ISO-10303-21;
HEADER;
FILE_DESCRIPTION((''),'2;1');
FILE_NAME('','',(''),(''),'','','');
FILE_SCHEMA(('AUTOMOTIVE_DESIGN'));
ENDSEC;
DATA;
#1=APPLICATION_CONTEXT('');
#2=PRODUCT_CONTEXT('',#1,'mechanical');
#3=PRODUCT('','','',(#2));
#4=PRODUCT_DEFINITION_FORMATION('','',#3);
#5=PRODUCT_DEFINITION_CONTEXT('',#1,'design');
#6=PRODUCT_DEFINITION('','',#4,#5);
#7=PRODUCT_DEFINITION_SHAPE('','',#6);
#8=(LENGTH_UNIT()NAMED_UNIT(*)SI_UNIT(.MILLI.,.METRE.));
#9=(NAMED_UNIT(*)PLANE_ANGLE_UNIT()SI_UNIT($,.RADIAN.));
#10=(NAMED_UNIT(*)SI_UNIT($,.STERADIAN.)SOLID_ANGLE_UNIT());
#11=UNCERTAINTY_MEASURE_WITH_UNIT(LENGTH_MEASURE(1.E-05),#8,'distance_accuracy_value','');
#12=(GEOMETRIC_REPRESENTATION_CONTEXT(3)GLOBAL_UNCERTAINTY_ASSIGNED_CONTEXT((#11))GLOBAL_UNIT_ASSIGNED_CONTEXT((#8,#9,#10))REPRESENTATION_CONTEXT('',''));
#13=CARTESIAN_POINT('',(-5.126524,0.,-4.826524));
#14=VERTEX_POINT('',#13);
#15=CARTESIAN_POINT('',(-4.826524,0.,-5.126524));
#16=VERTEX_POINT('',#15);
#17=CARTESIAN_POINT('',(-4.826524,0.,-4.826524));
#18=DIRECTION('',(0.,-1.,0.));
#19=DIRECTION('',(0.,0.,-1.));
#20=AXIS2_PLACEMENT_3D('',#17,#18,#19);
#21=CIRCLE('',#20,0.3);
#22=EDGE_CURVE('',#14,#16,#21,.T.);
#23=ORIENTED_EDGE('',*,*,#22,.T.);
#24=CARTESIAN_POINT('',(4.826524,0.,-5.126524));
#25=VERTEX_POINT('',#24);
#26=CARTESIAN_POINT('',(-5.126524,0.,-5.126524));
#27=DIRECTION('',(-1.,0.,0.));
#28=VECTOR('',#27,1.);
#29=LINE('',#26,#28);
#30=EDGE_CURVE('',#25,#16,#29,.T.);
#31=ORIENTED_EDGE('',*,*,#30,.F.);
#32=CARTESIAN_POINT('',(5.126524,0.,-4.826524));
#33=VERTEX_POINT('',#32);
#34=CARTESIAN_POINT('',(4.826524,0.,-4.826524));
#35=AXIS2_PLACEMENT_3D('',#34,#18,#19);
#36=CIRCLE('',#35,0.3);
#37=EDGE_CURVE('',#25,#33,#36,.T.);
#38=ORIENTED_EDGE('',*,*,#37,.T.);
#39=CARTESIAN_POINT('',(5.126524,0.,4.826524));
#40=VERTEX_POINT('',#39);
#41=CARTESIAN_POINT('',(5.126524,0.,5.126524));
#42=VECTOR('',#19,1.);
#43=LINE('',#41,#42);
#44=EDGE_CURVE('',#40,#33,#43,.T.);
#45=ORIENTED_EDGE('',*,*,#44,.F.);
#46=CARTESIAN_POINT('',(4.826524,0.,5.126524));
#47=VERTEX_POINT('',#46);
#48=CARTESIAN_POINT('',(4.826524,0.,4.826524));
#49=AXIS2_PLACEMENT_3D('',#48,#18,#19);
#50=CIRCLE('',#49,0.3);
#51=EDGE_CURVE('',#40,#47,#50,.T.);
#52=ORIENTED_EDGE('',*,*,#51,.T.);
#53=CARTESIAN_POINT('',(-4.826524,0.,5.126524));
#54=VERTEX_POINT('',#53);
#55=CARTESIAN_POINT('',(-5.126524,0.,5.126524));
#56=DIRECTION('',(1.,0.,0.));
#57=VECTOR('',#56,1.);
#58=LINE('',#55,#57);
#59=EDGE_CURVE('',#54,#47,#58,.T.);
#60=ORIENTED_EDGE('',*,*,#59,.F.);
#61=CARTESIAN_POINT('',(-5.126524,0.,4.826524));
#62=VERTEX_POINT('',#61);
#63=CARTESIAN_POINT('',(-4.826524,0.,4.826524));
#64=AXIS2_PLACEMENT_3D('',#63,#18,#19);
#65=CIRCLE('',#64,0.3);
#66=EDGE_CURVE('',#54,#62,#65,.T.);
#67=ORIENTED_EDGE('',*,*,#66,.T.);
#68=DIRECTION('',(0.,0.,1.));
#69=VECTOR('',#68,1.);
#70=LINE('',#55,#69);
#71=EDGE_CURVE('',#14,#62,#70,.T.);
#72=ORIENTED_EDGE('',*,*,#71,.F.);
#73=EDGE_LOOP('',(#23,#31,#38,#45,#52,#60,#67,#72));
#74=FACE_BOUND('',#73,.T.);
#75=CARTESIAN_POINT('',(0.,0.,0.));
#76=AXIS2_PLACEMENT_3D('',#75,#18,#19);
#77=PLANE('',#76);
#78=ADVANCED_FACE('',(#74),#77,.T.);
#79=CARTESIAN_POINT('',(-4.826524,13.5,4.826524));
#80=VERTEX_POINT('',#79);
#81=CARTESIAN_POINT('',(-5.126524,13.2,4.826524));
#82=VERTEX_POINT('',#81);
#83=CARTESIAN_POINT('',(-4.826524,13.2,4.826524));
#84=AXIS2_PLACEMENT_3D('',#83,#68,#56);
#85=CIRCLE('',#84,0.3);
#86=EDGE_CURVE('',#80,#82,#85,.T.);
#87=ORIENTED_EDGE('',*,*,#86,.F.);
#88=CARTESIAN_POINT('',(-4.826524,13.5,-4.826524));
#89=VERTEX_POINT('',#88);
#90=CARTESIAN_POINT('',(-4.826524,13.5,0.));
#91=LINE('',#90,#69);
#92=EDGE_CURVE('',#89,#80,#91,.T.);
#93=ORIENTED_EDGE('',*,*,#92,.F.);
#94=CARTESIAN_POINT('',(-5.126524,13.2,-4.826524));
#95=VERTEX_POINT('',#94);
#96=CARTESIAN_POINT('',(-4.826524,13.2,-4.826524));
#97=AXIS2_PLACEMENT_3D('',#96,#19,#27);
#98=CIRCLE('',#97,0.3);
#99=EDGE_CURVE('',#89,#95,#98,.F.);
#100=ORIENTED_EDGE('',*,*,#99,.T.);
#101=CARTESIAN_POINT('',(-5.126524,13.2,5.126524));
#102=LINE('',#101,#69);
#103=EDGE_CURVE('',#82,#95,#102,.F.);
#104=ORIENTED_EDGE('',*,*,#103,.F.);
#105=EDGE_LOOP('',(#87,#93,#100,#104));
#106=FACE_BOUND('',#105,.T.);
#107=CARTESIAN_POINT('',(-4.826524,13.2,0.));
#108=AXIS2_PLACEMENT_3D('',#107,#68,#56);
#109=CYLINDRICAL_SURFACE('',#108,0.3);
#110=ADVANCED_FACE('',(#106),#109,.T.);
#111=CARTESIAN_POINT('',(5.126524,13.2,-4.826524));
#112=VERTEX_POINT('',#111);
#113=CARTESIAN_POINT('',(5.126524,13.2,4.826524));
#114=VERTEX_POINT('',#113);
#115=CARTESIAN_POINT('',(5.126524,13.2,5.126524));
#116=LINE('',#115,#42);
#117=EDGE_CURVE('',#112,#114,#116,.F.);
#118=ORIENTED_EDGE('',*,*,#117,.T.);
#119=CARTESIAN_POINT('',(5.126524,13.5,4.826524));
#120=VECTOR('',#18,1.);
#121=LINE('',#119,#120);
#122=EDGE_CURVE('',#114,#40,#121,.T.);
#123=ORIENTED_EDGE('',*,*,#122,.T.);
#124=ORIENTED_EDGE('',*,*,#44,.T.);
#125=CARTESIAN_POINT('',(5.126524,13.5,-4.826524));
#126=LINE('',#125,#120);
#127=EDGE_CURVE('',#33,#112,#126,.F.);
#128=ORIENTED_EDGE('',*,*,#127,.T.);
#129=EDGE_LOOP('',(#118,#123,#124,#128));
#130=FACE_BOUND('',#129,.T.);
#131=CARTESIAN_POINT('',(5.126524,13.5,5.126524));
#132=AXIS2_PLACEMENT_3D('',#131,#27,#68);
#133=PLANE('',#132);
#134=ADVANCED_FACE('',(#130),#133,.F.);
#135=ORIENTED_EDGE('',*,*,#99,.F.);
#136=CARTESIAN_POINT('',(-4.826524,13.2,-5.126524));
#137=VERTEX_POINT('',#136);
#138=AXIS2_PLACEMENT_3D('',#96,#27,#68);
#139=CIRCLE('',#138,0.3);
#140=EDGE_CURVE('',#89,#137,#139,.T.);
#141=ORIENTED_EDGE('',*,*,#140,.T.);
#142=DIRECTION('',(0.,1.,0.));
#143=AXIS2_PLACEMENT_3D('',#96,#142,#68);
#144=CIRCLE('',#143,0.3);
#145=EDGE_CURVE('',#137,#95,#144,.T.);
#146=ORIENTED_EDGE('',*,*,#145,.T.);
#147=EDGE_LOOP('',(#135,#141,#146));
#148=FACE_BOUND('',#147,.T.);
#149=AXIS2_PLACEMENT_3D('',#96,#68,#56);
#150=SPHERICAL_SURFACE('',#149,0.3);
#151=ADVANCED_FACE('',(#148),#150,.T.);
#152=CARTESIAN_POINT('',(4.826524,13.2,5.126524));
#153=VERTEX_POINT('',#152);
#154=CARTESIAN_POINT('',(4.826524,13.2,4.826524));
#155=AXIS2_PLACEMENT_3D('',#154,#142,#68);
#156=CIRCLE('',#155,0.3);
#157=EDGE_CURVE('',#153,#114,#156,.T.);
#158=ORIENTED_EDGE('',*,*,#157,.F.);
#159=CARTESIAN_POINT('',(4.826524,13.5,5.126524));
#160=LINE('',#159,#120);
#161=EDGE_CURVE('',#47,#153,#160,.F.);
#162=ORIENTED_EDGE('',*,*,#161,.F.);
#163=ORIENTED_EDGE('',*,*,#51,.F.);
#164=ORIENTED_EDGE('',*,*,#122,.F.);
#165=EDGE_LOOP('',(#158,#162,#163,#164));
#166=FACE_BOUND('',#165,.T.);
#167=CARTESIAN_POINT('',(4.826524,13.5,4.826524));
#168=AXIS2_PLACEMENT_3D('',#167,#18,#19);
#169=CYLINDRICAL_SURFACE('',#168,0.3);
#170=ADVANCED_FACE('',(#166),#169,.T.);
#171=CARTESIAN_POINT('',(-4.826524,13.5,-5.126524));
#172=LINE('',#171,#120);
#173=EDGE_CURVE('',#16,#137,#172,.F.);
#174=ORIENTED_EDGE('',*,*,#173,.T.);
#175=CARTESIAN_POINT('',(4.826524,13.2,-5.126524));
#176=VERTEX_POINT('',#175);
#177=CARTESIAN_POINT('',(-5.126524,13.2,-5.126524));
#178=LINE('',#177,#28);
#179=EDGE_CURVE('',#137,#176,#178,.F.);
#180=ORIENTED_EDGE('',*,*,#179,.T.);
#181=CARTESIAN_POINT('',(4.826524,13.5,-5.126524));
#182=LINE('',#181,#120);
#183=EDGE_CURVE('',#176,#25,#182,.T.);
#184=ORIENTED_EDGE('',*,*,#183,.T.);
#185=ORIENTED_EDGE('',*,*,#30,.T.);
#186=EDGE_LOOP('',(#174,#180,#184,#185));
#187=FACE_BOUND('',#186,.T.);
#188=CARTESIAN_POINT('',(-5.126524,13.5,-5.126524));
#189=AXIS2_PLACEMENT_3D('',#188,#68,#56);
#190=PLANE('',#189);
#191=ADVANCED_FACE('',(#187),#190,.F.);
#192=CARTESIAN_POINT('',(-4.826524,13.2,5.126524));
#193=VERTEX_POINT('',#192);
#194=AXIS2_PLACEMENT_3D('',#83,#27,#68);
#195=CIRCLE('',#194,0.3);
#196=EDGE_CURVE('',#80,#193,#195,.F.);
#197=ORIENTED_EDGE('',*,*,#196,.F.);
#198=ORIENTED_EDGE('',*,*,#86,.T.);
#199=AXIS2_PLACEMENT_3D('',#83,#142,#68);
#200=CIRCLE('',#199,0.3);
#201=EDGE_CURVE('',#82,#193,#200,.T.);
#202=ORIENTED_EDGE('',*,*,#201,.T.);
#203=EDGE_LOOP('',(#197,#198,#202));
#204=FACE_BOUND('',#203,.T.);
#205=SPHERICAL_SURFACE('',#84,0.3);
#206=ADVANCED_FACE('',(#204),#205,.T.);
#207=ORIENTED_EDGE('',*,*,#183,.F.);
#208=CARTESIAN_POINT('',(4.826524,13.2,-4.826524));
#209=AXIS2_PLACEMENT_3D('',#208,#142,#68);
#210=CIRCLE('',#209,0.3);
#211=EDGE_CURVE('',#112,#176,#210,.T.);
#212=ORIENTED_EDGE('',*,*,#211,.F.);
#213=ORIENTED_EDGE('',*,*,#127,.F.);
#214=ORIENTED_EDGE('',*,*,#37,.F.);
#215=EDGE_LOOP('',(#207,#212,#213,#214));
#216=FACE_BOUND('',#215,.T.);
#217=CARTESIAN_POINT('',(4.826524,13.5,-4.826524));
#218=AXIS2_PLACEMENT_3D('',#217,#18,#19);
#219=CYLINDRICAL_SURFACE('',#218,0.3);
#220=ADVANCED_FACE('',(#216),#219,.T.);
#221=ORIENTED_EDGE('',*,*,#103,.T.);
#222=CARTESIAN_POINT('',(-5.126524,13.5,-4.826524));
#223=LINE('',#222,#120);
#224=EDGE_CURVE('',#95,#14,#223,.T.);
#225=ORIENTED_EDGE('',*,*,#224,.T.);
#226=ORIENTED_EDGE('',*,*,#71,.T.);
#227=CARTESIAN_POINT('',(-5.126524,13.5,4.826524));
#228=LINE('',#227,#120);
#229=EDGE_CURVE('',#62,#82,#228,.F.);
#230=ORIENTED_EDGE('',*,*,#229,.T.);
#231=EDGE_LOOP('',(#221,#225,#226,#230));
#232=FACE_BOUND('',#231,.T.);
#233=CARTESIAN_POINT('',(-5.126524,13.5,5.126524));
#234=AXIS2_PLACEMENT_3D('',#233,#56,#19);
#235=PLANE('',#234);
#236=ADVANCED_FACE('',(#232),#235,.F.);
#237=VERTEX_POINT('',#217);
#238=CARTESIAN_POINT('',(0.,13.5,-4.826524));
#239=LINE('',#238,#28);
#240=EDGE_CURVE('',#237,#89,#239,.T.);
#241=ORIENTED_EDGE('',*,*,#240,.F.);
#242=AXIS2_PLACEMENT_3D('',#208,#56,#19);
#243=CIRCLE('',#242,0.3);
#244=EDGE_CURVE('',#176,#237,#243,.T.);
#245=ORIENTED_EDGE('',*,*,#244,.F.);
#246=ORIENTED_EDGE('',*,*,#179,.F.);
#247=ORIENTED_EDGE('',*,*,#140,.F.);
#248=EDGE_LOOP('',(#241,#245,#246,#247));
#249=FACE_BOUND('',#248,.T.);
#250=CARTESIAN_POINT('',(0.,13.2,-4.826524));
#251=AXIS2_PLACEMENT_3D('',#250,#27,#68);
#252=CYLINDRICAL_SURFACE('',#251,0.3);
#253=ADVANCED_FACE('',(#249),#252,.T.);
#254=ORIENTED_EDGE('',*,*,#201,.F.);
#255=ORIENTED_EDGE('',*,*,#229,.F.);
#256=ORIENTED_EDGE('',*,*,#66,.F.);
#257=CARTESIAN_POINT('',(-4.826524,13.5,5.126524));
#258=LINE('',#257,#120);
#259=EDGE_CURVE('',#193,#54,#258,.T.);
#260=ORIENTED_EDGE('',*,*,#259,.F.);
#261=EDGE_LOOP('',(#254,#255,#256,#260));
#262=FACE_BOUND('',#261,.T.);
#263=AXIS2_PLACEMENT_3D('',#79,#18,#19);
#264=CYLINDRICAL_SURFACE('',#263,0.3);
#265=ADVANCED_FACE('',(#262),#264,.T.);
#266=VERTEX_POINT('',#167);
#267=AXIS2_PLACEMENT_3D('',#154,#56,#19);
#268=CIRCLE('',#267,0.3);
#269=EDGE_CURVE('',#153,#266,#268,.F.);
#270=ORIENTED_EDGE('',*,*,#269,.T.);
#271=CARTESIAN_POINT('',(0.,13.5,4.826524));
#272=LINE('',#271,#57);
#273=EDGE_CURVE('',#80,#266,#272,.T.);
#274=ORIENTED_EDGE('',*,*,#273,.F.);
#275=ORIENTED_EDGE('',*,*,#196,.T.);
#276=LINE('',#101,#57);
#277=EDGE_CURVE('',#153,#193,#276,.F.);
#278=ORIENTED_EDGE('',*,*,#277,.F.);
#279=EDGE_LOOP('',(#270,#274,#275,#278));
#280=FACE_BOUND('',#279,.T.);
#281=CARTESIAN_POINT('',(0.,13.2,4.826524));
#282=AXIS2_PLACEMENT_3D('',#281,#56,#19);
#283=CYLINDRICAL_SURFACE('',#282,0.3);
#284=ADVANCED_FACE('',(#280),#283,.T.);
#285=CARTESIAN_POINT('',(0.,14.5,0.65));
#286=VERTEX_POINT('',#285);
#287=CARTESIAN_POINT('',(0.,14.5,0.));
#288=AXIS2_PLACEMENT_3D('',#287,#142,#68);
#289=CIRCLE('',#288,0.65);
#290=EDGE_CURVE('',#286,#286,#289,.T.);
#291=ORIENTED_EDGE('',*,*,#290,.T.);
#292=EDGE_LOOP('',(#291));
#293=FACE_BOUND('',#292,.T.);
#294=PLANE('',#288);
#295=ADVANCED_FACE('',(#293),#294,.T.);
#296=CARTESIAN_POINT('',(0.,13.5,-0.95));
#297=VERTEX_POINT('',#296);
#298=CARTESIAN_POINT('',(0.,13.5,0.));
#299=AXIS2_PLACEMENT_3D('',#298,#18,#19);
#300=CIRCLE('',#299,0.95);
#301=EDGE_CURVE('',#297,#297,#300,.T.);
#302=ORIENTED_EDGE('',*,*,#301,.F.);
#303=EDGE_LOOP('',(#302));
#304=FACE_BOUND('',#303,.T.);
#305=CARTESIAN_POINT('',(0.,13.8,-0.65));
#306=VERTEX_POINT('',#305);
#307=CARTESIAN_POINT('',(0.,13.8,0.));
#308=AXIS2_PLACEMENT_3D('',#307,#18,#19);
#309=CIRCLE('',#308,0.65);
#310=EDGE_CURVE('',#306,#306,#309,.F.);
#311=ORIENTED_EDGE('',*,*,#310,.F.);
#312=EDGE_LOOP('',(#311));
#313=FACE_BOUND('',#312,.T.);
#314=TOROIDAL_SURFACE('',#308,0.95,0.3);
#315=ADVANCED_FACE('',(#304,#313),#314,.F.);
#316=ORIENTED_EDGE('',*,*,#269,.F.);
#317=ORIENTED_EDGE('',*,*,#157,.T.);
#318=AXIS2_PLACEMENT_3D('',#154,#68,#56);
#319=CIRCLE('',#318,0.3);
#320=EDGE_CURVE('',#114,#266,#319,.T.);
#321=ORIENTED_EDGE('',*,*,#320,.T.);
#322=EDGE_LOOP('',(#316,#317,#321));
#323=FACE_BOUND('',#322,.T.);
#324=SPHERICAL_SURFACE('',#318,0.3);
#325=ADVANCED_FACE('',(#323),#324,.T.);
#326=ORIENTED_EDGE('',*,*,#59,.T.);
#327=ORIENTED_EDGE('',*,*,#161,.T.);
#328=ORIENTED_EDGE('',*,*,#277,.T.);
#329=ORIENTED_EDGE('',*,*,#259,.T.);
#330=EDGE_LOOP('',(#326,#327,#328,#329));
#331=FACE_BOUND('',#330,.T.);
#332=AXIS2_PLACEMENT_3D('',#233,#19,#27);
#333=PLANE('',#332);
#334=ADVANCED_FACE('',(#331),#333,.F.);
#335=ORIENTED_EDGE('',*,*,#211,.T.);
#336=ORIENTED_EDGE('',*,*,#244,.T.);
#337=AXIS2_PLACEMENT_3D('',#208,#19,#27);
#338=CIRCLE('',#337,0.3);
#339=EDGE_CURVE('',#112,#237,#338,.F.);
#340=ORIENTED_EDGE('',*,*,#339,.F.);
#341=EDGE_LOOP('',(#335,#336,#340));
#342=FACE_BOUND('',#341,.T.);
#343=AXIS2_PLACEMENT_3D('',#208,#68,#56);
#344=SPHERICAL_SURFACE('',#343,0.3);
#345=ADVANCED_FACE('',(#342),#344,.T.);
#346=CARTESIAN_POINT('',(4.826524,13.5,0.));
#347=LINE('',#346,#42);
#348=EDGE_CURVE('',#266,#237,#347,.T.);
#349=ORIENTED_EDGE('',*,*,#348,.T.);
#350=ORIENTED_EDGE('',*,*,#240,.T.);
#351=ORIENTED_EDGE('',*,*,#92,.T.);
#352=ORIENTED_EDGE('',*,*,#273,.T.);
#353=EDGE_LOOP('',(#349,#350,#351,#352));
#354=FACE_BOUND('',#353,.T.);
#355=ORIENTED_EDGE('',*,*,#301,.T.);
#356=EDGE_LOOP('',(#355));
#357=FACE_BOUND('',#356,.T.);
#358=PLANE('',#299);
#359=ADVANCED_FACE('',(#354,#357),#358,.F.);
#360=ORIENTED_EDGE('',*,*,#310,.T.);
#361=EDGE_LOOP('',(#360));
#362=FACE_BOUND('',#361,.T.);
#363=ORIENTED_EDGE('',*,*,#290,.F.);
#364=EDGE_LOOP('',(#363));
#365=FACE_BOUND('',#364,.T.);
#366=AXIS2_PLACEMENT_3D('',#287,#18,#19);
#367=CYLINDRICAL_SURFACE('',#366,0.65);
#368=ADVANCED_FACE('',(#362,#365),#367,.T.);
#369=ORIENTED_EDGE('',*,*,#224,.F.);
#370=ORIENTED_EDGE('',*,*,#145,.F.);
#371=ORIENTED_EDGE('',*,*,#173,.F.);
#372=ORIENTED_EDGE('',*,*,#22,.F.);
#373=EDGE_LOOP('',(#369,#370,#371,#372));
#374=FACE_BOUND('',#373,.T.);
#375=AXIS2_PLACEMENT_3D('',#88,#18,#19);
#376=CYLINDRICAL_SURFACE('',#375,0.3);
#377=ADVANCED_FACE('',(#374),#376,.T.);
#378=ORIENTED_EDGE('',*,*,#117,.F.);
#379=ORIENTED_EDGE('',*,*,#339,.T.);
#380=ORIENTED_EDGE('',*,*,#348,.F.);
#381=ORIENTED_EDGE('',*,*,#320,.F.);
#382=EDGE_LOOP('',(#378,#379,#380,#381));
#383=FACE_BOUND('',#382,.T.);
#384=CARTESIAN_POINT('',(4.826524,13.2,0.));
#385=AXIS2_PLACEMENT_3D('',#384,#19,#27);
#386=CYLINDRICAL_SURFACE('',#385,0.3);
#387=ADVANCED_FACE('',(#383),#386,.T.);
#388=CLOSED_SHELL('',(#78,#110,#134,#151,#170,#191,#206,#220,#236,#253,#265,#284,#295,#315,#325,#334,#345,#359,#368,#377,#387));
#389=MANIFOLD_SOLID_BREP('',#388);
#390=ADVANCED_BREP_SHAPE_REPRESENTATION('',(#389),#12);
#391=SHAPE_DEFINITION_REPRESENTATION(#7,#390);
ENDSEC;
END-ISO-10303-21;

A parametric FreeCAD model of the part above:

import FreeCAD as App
import Part
import Sketcher

V = App.Vector
Q = App.Units.Quantity


def edges_at(feature, points):
    """Names of the edges that pass closest to the given points."""
    edges = feature.Shape.Edges
    near = lambda p: min(range(len(edges)), key=lambda i: edges[i].distToShape(Part.Vertex(*p))[0])
    return sorted({f"Edge{near(p) + 1}" for p in points})

doc = App.newDocument("Part")
body = doc.addObject("PartDesign::Body", "Body")

# Sketch on XZ plane
sketch1 = doc.addObject("Sketcher::SketchObject", "Sketch")
body.addObject(sketch1)
sketch1.AttachmentSupport = (doc.XZ_Plane, [""])
sketch1.MapMode = "FlatFace"
sketch1.addGeometry(Part.LineSegment(V(-5.126524, -5.126524, 0), V(-5.126524, 5.126524, 0)), False)
sketch1.addGeometry(Part.LineSegment(V(-5.126524, 5.126524, 0), V(5.126524, 5.126524, 0)), False)
sketch1.addGeometry(Part.LineSegment(V(5.126524, 5.126524, 0), V(5.126524, -5.126524, 0)), False)
sketch1.addGeometry(Part.LineSegment(V(5.126524, -5.126524, 0), V(-5.126524, -5.126524, 0)), False)
sketch1.addConstraint(Sketcher.Constraint("Coincident", 0, 2, 1, 1))
sketch1.addConstraint(Sketcher.Constraint("Coincident", 1, 2, 2, 1))
sketch1.addConstraint(Sketcher.Constraint("Coincident", 2, 2, 3, 1))
sketch1.addConstraint(Sketcher.Constraint("Coincident", 3, 2, 0, 1))
sketch1.addConstraint(Sketcher.Constraint("Vertical", 0))
sketch1.addConstraint(Sketcher.Constraint("Horizontal", 1))
sketch1.addConstraint(Sketcher.Constraint("Vertical", 2))
sketch1.addConstraint(Sketcher.Constraint("Horizontal", 3))
sketch1.addConstraint(Sketcher.Constraint("Symmetric", 0, 2, 2, 2, -1, 1))
sketch1.addConstraint(Sketcher.Constraint("Equal", 3, 0))
sketch1.addConstraint(Sketcher.Constraint("DistanceX", 1, 1, 1, 2, Q("10.253048 mm")))
pad1 = doc.addObject("PartDesign::Pad", "Pad")
body.addObject(pad1)
pad1.Profile = sketch1
pad1.Length = 13.5
pad1.Reversed = True

# Sketch on XZ plane
sketch2 = doc.addObject("Sketcher::SketchObject", "Sketch001")
body.addObject(sketch2)
sketch2.AttachmentSupport = (doc.XZ_Plane, [""])
sketch2.MapMode = "FlatFace"
sketch2.AttachmentOffset = App.Placement(V(0, 0, -13.5), App.Rotation())
sketch2.addGeometry(Part.Circle(V(0, 0, 0), V(0, 0, 1), 0.65), False)
sketch2.addConstraint(Sketcher.Constraint("Coincident", 0, 3, -1, 1))
sketch2.addConstraint(Sketcher.Constraint("Diameter", 0, Q("1.3 mm")))
pad2 = doc.addObject("PartDesign::Pad", "Pad001")
body.addObject(pad2)
pad2.Profile = sketch2
pad2.Length = 1
pad2.Reversed = True
doc.recompute()

fillet = doc.addObject("PartDesign::Fillet", "Fillet")
body.addObject(fillet)
fillet.Base = (pad2, edges_at(pad2, [
    (-5.127, 13.5, 0),
    (0, 13.5, 0.65),
    (0, 13.5, 5.127),
    (5.127, 13.5, 0),
    (5.127, 6.75, 5.127),
    (-5.127, 6.75, 5.127),
    (-5.127, 6.75, -5.127),
    (5.127, 6.75, -5.127),
    (0, 13.5, -5.127),
]))
fillet.Radius = 0.3

doc.recompute()
